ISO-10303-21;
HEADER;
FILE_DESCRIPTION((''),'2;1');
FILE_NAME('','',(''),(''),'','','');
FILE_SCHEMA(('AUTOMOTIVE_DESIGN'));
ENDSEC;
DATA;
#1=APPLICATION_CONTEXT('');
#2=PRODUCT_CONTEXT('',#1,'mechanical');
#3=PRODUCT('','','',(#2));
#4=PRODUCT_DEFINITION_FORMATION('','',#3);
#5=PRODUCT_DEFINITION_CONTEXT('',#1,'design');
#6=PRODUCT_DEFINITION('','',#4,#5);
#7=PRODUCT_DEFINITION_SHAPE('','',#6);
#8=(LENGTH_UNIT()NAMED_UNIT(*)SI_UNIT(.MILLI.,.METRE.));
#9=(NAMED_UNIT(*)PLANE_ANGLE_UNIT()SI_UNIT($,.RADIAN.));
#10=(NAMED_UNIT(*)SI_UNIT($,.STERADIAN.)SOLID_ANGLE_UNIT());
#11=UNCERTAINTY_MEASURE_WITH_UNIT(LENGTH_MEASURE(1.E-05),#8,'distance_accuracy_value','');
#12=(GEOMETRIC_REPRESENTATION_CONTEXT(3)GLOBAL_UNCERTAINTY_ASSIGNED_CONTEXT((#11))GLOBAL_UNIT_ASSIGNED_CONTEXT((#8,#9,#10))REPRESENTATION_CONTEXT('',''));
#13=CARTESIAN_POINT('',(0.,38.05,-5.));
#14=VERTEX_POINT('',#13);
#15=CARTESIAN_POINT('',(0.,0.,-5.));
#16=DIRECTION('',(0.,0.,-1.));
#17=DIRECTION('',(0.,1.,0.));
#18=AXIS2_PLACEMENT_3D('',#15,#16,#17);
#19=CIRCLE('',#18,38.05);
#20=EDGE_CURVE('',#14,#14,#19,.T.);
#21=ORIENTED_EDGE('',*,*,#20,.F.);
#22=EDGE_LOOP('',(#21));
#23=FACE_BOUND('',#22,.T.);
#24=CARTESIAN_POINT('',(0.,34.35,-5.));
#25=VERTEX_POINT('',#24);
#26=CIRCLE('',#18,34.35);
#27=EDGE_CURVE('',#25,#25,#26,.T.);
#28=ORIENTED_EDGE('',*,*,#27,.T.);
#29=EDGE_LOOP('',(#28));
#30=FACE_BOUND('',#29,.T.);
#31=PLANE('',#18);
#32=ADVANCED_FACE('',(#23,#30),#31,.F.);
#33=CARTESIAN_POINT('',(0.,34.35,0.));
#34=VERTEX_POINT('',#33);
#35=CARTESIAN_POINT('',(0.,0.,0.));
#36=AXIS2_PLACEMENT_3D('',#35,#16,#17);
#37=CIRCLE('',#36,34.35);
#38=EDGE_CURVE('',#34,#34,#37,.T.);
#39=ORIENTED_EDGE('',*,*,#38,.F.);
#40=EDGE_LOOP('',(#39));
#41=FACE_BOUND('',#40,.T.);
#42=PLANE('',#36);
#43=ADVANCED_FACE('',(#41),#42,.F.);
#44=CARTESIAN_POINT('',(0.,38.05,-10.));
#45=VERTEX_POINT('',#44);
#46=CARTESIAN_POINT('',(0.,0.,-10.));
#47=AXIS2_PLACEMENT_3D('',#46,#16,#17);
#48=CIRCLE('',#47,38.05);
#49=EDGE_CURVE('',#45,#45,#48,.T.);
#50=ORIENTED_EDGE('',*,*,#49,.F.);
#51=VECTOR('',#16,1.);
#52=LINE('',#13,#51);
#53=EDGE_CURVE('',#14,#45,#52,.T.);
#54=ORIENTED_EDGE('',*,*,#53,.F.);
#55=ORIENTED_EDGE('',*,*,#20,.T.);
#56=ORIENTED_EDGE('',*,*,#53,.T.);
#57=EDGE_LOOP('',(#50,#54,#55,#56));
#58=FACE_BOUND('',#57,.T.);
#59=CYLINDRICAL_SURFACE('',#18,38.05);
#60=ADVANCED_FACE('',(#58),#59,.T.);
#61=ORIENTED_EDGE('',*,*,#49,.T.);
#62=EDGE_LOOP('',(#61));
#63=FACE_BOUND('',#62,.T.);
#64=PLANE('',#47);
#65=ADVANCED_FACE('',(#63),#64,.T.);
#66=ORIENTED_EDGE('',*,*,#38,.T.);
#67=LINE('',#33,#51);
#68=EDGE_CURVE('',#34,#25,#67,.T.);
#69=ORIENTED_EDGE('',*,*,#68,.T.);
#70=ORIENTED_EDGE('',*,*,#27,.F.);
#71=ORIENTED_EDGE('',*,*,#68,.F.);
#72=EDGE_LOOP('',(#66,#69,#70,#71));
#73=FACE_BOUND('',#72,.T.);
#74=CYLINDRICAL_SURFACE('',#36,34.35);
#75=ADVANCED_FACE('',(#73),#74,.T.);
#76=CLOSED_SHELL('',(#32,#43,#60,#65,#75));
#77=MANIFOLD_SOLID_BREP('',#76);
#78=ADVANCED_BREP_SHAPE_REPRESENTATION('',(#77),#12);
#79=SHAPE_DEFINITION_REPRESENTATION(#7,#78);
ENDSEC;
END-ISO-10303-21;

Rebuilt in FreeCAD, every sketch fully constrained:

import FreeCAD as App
import Part
import Sketcher

V = App.Vector

doc = App.newDocument("Part")
params = doc.addObject("Spreadsheet::Sheet", "Params")
for row, (alias, value) in enumerate([
    ("sketch1_height", "5 mm"),
    ("sketch1_width", "3.7 mm"),
    ("sketch1_width2", "34.35 mm"),
    ("revolution_angle", "360 deg"),
], start=1):
    params.set(f"A{row}", alias)
    params.set(f"B{row}", "=" + value)
    params.setAlias(f"B{row}", alias)

body = doc.addObject("PartDesign::Body", "Body")

sketch1 = body.newObject("Sketcher::SketchObject", "Sketch")
sketch1.AttachmentSupport = (doc.getObject("YZ_Plane"), [""])
sketch1.MapMode = "FlatFace"
sketch1.addGeometry(Part.LineSegment(V(34.35, -5, 0), V(34.35, 0, 0)), False)
sketch1.addGeometry(Part.LineSegment(V(34.35, 0, 0), V(0, 0, 0)), False)
sketch1.addGeometry(Part.LineSegment(V(0, 0, 0), V(0, -10, 0)), False)
sketch1.addGeometry(Part.LineSegment(V(0, -10, 0), V(38.05, -10, 0)), False)
sketch1.addGeometry(Part.LineSegment(V(38.05, -10, 0), V(38.05, -5, 0)), False)
sketch1.addGeometry(Part.LineSegment(V(38.05, -5, 0), V(34.35, -5, 0)), False)
sketch1.addConstraint(Sketcher.Constraint("Coincident", 0, 2, 1, 1))
sketch1.addConstraint(Sketcher.Constraint("Coincident", 1, 2, 2, 1))
sketch1.addConstraint(Sketcher.Constraint("Coincident", 2, 2, 3, 1))
sketch1.addConstraint(Sketcher.Constraint("Coincident", 3, 2, 4, 1))
sketch1.addConstraint(Sketcher.Constraint("Coincident", 4, 2, 5, 1))
sketch1.addConstraint(Sketcher.Constraint("Coincident", 5, 2, 0, 1))
sketch1.addConstraint(Sketcher.Constraint("Vertical", 0))
sketch1.addConstraint(Sketcher.Constraint("Horizontal", 1))
sketch1.addConstraint(Sketcher.Constraint("Vertical", 2))
sketch1.addConstraint(Sketcher.Constraint("Horizontal", 3))
sketch1.addConstraint(Sketcher.Constraint("Vertical", 4))
sketch1.addConstraint(Sketcher.Constraint("Horizontal", 5))
sketch1.addConstraint(Sketcher.Constraint("Coincident", 1, 2, -1, 1))
sketch1.addConstraint(Sketcher.Constraint("Equal", 0, 4))
sketch1.addConstraint(Sketcher.Constraint("DistanceY", 0, 1, 0, 2, 5.0))
sketch1.addConstraint(Sketcher.Constraint("DistanceX", 5, 2, 5, 1, 3.7))
sketch1.addConstraint(Sketcher.Constraint("DistanceX", 1, 2, 1, 1, 34.35))
sketch1.setExpression("Constraints[14]", "Params.sketch1_height")
sketch1.setExpression("Constraints[15]", "Params.sketch1_width")
sketch1.setExpression("Constraints[16]", "Params.sketch1_width2")
revolution = body.newObject("PartDesign::Revolution", "Revolution")
revolution.Profile = sketch1
revolution.ReferenceAxis = (sketch1, ["V_Axis"])
revolution.setExpression("Angle", "Params.revolution_angle")

doc.recompute()
